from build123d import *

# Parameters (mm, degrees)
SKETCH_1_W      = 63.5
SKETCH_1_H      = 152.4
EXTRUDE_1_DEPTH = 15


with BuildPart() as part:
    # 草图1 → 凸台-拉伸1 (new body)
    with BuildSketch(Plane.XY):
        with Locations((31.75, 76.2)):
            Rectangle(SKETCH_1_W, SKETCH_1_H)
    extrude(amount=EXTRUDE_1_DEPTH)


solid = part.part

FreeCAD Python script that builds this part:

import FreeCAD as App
import Part
import Sketcher

V = App.Vector
Q = App.Units.Quantity


def add_polygon(sketch, points):
    """Adds a closed chain of lines whose ends are joined by coincident constraints."""
    first, n = sketch.GeometryCount, len(points)
    for a, b in zip(points, points[1:] + points[:1]):
        sketch.addGeometry(Part.LineSegment(App.Vector(*a, 0), App.Vector(*b, 0)), False)
    for i in range(n):
        sketch.addConstraint(Sketcher.Constraint("Coincident", first + i, 2, first + (i + 1) % n, 1))

doc = App.newDocument("Part")
body = doc.addObject("PartDesign::Body", "Body")

# Sketch on XY plane
sketch1 = doc.addObject("Sketcher::SketchObject", "Sketch")
body.addObject(sketch1)
sketch1.AttachmentSupport = (doc.XY_Plane, [""])
sketch1.MapMode = "FlatFace"
add_polygon(sketch1, [(0, 152), (0, 0), (64, 0), (64, 152)])  # lines 0-3
sketch1.addConstraint(Sketcher.Constraint("Vertical", 0))
sketch1.addConstraint(Sketcher.Constraint("Horizontal", 1))
sketch1.addConstraint(Sketcher.Constraint("Vertical", 2))
sketch1.addConstraint(Sketcher.Constraint("Horizontal", 3))
sketch1.addConstraint(Sketcher.Constraint("Coincident", 0, 2, -1, 1))
sketch1.addConstraint(Sketcher.Constraint("DistanceY", 0, 2, 0, 1, Q("6 in")))
sketch1.addConstraint(Sketcher.Constraint("DistanceX", 1, 1, 1, 2, Q("2.5 in")))
pad1 = doc.addObject("PartDesign::Pad", "Pad")
body.addObject(pad1)
pad1.Profile = sketch1
pad1.Length = 15

doc.recompute()
